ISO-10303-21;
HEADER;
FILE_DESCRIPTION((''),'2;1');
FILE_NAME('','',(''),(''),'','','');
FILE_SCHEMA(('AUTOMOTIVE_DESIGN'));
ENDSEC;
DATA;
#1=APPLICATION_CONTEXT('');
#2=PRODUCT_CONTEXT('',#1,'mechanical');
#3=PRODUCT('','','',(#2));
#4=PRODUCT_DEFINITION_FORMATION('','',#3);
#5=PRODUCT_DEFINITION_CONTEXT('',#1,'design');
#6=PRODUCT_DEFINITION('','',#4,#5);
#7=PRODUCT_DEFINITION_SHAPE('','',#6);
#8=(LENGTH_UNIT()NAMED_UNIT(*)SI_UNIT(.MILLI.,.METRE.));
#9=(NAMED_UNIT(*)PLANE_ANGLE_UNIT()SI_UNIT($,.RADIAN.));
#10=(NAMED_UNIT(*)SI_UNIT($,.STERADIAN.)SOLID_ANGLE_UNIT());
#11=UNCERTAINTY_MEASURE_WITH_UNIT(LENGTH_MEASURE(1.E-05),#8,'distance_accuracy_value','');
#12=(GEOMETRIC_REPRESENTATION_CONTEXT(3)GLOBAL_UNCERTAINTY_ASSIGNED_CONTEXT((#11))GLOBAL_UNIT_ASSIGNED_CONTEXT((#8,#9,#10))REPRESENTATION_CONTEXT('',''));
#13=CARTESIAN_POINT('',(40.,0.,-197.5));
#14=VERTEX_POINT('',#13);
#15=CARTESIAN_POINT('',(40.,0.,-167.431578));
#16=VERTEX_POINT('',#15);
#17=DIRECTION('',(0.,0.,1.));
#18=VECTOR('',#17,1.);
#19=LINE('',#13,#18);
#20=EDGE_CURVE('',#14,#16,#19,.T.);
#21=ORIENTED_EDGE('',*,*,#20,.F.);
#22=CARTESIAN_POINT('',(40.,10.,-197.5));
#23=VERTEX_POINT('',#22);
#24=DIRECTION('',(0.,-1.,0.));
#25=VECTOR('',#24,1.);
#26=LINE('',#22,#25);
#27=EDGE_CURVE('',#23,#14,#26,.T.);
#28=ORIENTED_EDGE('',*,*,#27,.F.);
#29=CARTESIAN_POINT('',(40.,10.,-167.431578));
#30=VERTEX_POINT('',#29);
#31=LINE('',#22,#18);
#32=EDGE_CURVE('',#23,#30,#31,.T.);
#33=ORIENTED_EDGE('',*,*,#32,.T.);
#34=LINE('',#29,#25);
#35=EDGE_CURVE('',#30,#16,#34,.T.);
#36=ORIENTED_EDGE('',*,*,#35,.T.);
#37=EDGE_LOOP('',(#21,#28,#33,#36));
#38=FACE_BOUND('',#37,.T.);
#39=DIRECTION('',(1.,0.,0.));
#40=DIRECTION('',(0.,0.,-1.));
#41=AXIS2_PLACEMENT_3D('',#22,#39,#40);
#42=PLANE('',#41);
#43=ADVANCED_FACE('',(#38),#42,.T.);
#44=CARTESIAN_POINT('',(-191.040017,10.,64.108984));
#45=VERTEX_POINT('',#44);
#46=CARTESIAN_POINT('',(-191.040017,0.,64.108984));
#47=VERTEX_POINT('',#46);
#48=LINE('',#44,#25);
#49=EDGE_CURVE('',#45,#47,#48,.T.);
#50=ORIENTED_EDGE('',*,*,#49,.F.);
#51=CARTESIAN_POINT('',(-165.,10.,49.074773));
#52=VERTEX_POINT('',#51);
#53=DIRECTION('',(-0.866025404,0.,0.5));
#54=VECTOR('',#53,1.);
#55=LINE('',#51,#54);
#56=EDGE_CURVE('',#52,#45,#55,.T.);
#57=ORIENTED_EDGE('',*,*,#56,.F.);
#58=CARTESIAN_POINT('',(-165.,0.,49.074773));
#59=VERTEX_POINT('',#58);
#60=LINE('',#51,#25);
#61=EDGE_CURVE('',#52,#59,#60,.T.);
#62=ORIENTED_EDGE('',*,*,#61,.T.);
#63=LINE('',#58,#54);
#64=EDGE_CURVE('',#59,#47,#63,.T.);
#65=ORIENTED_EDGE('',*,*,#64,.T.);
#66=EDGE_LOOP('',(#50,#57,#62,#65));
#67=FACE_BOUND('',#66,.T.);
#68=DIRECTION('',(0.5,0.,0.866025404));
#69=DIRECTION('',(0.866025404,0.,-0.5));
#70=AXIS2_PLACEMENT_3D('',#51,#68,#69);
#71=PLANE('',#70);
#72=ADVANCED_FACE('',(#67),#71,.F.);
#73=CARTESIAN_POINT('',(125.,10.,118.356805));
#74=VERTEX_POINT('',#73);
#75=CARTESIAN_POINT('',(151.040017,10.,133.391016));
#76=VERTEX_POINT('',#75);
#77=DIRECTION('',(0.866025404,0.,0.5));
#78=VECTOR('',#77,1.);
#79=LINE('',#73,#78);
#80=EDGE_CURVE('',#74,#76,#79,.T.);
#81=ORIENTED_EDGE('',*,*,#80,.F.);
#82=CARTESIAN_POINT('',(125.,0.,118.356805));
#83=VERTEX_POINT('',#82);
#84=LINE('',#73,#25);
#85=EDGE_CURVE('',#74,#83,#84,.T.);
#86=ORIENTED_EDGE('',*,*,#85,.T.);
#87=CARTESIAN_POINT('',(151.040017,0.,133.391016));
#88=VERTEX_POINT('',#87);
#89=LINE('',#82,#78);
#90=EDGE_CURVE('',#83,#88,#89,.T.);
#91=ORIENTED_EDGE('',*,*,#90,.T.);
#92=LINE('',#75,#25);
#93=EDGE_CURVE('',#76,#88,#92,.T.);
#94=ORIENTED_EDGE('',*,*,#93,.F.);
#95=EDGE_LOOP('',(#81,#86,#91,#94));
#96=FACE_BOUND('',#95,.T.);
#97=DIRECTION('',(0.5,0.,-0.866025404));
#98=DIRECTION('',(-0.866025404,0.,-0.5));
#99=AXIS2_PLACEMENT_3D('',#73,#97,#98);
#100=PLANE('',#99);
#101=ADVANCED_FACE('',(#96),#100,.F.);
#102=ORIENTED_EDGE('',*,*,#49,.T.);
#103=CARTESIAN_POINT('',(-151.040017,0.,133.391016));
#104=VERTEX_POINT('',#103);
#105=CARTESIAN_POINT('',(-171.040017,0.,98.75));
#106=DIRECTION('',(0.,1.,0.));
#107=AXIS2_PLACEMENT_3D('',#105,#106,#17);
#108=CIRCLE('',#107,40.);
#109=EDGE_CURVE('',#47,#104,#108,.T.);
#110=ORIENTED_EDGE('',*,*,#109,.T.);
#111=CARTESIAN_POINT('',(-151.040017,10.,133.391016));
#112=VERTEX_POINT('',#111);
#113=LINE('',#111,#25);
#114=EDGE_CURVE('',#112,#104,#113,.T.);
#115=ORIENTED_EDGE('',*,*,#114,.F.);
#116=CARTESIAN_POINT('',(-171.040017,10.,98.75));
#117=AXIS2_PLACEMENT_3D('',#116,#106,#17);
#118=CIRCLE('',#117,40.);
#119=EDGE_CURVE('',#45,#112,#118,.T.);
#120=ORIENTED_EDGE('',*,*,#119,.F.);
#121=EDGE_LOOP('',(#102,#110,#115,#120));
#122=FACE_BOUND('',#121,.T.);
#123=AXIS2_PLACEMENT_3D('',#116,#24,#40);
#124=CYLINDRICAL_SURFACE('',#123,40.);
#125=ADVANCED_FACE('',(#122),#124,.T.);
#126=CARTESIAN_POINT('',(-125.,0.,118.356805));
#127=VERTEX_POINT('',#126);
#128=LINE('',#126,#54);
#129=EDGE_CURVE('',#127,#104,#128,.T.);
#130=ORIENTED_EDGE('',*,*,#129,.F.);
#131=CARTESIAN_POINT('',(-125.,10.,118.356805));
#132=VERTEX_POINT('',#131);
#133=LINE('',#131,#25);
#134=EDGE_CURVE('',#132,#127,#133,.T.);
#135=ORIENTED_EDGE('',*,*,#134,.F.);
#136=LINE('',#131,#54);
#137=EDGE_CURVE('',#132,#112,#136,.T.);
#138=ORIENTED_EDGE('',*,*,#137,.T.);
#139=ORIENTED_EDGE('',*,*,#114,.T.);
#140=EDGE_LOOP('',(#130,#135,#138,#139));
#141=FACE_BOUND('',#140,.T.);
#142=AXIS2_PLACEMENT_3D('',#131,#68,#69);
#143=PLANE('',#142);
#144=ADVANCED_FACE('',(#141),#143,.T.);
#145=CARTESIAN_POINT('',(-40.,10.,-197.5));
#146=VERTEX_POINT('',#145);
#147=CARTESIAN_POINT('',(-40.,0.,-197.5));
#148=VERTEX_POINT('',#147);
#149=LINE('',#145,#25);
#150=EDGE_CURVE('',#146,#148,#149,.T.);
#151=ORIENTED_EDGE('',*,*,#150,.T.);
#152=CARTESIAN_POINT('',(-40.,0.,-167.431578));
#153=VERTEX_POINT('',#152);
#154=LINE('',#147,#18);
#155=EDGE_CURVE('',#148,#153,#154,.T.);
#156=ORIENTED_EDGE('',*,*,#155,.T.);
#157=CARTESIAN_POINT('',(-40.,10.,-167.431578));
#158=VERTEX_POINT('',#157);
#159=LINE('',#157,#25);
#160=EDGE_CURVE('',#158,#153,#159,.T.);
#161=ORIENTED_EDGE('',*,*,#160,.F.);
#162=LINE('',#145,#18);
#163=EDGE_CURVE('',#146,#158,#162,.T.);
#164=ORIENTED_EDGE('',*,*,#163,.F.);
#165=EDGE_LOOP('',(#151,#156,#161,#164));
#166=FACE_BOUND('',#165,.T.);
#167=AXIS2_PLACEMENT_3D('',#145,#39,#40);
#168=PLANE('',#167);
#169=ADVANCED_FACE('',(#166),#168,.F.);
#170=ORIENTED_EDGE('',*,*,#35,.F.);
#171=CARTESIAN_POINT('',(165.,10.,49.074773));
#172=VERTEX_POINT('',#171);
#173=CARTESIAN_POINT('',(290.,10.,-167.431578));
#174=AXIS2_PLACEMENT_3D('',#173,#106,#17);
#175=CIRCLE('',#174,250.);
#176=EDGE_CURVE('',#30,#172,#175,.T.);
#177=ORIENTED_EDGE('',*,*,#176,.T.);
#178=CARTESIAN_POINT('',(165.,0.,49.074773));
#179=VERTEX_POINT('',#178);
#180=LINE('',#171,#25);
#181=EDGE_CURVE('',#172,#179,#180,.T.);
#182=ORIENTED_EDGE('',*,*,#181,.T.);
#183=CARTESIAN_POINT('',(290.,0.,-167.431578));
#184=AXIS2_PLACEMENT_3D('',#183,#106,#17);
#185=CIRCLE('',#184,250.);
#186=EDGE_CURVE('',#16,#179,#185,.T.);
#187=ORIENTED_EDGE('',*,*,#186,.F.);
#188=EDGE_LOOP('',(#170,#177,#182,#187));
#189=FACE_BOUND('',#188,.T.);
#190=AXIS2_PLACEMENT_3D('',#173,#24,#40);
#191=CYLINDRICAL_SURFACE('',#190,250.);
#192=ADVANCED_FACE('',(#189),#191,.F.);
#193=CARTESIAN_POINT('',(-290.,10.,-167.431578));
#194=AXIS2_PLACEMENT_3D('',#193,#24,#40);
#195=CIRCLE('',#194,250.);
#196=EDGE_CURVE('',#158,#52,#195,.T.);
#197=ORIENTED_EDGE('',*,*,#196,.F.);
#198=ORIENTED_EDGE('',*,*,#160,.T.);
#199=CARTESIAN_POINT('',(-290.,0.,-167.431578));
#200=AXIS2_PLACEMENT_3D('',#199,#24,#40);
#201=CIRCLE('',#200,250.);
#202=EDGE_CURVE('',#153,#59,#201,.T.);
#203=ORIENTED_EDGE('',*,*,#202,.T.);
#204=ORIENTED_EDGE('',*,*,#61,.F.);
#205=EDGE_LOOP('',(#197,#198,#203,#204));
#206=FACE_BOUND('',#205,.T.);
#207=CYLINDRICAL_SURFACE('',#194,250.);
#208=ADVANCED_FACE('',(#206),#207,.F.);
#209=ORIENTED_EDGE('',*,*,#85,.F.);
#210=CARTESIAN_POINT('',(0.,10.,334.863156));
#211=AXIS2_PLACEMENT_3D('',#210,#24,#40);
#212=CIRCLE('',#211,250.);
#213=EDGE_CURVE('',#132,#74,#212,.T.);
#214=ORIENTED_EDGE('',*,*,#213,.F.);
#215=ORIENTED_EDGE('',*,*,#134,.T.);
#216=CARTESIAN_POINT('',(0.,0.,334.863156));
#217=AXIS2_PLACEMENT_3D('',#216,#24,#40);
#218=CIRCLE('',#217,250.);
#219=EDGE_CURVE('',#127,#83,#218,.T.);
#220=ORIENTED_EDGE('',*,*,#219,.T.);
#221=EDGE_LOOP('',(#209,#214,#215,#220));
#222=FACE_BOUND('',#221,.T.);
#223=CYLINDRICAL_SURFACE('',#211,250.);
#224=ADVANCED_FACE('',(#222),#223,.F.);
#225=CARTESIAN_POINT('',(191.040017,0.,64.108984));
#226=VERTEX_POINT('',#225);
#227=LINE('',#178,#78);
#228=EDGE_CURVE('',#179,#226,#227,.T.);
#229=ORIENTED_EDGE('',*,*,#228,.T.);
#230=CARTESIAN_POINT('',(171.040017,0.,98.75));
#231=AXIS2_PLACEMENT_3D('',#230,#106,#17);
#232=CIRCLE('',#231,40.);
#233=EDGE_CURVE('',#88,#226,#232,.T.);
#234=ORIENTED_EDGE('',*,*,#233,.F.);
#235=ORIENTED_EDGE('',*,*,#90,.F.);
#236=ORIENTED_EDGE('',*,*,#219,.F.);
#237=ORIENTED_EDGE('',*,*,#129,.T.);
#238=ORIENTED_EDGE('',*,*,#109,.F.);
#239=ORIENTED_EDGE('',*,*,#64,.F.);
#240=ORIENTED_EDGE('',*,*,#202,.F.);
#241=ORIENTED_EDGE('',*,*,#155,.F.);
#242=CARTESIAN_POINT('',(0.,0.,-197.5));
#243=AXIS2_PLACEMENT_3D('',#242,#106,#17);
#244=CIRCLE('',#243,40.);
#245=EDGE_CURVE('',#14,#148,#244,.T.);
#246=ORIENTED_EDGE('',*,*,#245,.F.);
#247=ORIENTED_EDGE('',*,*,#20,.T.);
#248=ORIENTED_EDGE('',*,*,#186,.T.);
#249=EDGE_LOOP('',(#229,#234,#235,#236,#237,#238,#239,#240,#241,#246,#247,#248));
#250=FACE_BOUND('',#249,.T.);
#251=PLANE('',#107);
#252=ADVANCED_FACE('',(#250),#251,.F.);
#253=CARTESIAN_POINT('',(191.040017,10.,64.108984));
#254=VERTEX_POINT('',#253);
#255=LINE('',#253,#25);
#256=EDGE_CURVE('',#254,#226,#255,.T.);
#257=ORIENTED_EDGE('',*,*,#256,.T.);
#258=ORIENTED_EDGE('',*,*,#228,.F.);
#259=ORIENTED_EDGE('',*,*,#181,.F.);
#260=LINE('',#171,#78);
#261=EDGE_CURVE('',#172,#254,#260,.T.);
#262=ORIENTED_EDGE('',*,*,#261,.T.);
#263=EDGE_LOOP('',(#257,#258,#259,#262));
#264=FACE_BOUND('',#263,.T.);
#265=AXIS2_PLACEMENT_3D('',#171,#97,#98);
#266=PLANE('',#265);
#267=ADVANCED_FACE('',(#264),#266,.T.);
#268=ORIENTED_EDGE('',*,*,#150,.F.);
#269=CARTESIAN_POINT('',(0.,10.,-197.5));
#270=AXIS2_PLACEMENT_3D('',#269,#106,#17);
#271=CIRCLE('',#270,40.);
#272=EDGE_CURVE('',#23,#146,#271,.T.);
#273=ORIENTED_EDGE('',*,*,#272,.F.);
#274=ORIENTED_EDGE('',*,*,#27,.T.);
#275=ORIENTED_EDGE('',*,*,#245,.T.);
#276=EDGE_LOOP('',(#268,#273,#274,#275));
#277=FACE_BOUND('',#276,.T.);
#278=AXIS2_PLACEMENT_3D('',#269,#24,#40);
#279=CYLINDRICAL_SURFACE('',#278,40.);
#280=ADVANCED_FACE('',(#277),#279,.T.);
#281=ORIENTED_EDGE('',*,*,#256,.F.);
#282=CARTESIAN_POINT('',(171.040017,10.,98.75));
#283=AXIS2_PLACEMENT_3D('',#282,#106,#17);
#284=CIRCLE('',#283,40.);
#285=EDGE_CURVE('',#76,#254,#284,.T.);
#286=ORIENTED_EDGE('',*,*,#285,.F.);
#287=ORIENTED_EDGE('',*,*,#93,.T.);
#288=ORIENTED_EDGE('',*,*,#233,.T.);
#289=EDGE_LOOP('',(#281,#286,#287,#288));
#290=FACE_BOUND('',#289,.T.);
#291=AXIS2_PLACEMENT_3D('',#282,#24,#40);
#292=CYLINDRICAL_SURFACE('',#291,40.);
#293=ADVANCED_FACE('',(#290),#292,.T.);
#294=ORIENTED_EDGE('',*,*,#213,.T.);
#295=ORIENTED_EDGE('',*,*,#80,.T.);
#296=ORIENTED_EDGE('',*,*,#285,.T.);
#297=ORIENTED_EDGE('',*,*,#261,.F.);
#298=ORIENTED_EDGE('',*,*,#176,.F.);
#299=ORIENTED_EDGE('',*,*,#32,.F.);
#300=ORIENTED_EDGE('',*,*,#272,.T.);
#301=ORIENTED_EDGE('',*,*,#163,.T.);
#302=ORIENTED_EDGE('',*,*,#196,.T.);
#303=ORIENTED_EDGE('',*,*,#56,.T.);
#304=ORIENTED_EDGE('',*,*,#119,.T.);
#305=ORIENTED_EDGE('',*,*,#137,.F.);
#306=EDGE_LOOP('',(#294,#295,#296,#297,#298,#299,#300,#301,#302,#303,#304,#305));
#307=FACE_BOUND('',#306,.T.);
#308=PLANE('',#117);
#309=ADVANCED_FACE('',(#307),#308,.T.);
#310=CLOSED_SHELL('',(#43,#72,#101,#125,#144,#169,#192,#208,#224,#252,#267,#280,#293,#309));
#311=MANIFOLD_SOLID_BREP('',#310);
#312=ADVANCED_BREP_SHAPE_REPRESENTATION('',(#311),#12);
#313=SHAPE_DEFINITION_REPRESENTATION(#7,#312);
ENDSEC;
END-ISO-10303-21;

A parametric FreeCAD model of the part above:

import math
import FreeCAD as App
import Part
import Sketcher
from FreeCAD import Vector

doc = App.newDocument("Part")
body = doc.addObject("PartDesign::Body", "Body")

sketch1 = body.newObject("Sketcher::SketchObject", "Sketch")
sketch1.AttachmentSupport = (doc.getObject("XZ_Plane"), [""])
sketch1.MapMode = "FlatFace"
sketch1.addGeometry([
    Part.LineSegment(Vector(40, -167.431578, 0), Vector(40, -197.5, 0)),
    Part.ArcOfCircle(Part.Circle(Vector(0, -197.5, 0), Vector(0, 0, 1), 40), math.radians(180), math.radians(360)),
    Part.LineSegment(Vector(-40, -197.5, 0), Vector(-40, -167.431578, 0)),
    Part.ArcOfCircle(Part.Circle(Vector(-290, -167.431578, 0), Vector(0, 0, 1), 250), math.radians(0), math.radians(60)),
    Part.LineSegment(Vector(-165, 49.074773, 0), Vector(-191.040017, 64.108984, 0)),
    Part.ArcOfCircle(Part.Circle(Vector(-171.040017, 98.75, 0), Vector(0, 0, 1), 40), math.radians(60), math.radians(240)),
    Part.LineSegment(Vector(-151.040017, 133.391016, 0), Vector(-125, 118.356805, 0)),
    Part.ArcOfCircle(Part.Circle(Vector(0, 334.863156, 0), Vector(0, 0, 1), 250), math.radians(-120), math.radians(-60)),
    Part.LineSegment(Vector(125, 118.356805, 0), Vector(151.040017, 133.391016, 0)),
    Part.ArcOfCircle(Part.Circle(Vector(171.040017, 98.75, 0), Vector(0, 0, 1), 40), math.radians(-60), math.radians(120)),
    Part.LineSegment(Vector(191.040017, 64.108984, 0), Vector(165, 49.074773, 0)),
    Part.ArcOfCircle(Part.Circle(Vector(290, -167.431578, 0), Vector(0, 0, 1), 250), math.radians(120), math.radians(180)),
], False)
sketch1.addConstraint([
    Sketcher.Constraint("Tangent", 0, 2, 1, 2),
    Sketcher.Constraint("Tangent", 1, 1, 2, 1),
    Sketcher.Constraint("Tangent", 2, 2, 3, 1),
    Sketcher.Constraint("Tangent", 3, 2, 4, 1),
    Sketcher.Constraint("Tangent", 4, 2, 5, 2),
    Sketcher.Constraint("Tangent", 5, 1, 6, 1),
    Sketcher.Constraint("Tangent", 6, 2, 7, 1),
    Sketcher.Constraint("Tangent", 7, 2, 8, 1),
    Sketcher.Constraint("Tangent", 8, 2, 9, 2),
    Sketcher.Constraint("Tangent", 9, 1, 10, 1),
    Sketcher.Constraint("Tangent", 10, 2, 11, 1),
    Sketcher.Constraint("Tangent", 11, 2, 0, 1),
    Sketcher.Constraint("Vertical", 0),
    Sketcher.Constraint("Vertical", 2),
    Sketcher.Constraint("Equal", 1, 5),
    Sketcher.Constraint("Equal", 3, 7),
    Sketcher.Constraint("Equal", 5, 9),
    Sketcher.Constraint("Equal", 7, 11),
    Sketcher.Constraint("Symmetric", 5, 3, 9, 3, -2),
    Sketcher.Constraint("Symmetric", 3, 3, 11, 3, -2),
    Sketcher.Constraint("PointOnObject", 7, 3, -2),
    Sketcher.Constraint("Parallel", 4, 6),
    Sketcher.Constraint("Equal", 4, 6),
    Sketcher.Constraint("Radius", 1, 40.0),
    Sketcher.Constraint("Radius", 3, 250.0),
    Sketcher.Constraint("DistanceY", 1, 3, -1, 1, 197.5),
    Sketcher.Constraint("DistanceY", -1, 1, 5, 3, 98.75),
    Sketcher.Constraint("DistanceY", 0, 2, 0, 1, 30.068422),
])
pad1 = body.newObject("PartDesign::Pad", "Pad")
pad1.Profile = sketch1
pad1.Length = 10
pad1.Reversed = True

doc.recompute()
